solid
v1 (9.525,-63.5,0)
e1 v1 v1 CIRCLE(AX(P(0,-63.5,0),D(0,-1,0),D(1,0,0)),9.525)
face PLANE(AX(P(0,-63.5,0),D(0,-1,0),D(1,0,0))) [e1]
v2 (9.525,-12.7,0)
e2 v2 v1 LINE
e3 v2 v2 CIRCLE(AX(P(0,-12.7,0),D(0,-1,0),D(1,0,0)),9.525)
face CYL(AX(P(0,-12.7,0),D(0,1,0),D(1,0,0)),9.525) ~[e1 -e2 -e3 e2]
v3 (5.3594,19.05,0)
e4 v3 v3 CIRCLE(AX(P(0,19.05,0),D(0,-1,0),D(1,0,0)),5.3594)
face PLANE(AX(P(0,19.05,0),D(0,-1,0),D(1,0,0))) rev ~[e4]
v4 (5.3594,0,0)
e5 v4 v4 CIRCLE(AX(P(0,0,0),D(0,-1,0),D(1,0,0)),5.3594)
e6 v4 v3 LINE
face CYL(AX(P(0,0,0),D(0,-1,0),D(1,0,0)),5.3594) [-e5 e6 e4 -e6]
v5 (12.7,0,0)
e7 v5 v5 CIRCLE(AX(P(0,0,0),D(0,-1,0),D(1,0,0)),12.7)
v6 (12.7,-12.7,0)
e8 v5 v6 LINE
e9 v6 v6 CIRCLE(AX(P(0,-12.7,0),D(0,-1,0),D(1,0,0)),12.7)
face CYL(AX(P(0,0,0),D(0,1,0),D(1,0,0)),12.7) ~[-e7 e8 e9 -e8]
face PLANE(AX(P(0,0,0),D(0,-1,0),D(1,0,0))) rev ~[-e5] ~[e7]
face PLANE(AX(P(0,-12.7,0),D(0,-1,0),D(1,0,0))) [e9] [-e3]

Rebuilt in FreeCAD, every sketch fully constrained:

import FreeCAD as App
import Part
import Sketcher
Q = App.Units.Quantity

doc = App.newDocument("Part")
params = doc.addObject("Spreadsheet::Sheet", "Params")
for row, (alias, value) in enumerate([
    ("sketch1_diameter", "1 in"),
    ("pad1_length", "0.5 in"),
    ("sketch2_diameter", "0.422 in"),
    ("pad2_length", "0.75 in"),
    ("sketch3_diameter", "0.75 in"),
    ("pad3_length", "2 in"),
], start=1):
    params.set(f"A{row}", alias)
    params.set(f"B{row}", "=" + value)
    params.setAlias(f"B{row}", alias)

body = doc.addObject("PartDesign::Body", "Body")

sketch1 = body.newObject("Sketcher::SketchObject", "Sketch")
sketch1.AttachmentSupport = (doc.getObject("XZ_Plane"), [""])
sketch1.MapMode = "FlatFace"
sketch1.addGeometry(Part.Circle(App.Vector(0, 0, 0), App.Vector(0, 0, 1), 13), False)
sketch1.addConstraint([
    Sketcher.Constraint("Coincident", 0, 3, -1, 1),
    Sketcher.Constraint("Diameter", 0, Q("1 in")),
])
sketch1.setExpression("Constraints[1]", "Params.sketch1_diameter")
pad1 = body.newObject("PartDesign::Pad", "Pad")
pad1.Profile = sketch1
pad1.setExpression("Length", "Params.pad1_length")

sketch2 = body.newObject("Sketcher::SketchObject", "Sketch001")
sketch2.AttachmentSupport = (doc.getObject("XZ_Plane"), [""])
sketch2.MapMode = "FlatFace"
sketch2.addGeometry(Part.Circle(App.Vector(0, 0, 0), App.Vector(0, 0, 1), 5), False)
sketch2.addConstraint([
    Sketcher.Constraint("Coincident", 0, 3, -1, 1),
    Sketcher.Constraint("Diameter", 0, Q("0.422 in")),
])
sketch2.setExpression("Constraints[1]", "Params.sketch2_diameter")
pad2 = body.newObject("PartDesign::Pad", "Pad001")
pad2.Profile = sketch2
pad2.setExpression("Length", "Params.pad2_length")
pad2.Reversed = True

sketch3 = body.newObject("Sketcher::SketchObject", "Sketch002")
sketch3.AttachmentSupport = (doc.getObject("XZ_Plane"), [""])
sketch3.MapMode = "FlatFace"
sketch3.AttachmentOffset = App.Placement(App.Vector(0, 0, 0.5 * 25.4), App.Rotation())
sketch3.addGeometry(Part.Circle(App.Vector(0, 0, 0), App.Vector(0, 0, 1), 10), False)
sketch3.addConstraint([
    Sketcher.Constraint("Coincident", 0, 3, -1, 1),
    Sketcher.Constraint("Diameter", 0, Q("0.75 in")),
])
sketch3.setExpression("Constraints[1]", "Params.sketch3_diameter")
pad3 = body.newObject("PartDesign::Pad", "Pad002")
pad3.Profile = sketch3
pad3.setExpression("Length", "Params.pad3_length")

doc.recompute()
